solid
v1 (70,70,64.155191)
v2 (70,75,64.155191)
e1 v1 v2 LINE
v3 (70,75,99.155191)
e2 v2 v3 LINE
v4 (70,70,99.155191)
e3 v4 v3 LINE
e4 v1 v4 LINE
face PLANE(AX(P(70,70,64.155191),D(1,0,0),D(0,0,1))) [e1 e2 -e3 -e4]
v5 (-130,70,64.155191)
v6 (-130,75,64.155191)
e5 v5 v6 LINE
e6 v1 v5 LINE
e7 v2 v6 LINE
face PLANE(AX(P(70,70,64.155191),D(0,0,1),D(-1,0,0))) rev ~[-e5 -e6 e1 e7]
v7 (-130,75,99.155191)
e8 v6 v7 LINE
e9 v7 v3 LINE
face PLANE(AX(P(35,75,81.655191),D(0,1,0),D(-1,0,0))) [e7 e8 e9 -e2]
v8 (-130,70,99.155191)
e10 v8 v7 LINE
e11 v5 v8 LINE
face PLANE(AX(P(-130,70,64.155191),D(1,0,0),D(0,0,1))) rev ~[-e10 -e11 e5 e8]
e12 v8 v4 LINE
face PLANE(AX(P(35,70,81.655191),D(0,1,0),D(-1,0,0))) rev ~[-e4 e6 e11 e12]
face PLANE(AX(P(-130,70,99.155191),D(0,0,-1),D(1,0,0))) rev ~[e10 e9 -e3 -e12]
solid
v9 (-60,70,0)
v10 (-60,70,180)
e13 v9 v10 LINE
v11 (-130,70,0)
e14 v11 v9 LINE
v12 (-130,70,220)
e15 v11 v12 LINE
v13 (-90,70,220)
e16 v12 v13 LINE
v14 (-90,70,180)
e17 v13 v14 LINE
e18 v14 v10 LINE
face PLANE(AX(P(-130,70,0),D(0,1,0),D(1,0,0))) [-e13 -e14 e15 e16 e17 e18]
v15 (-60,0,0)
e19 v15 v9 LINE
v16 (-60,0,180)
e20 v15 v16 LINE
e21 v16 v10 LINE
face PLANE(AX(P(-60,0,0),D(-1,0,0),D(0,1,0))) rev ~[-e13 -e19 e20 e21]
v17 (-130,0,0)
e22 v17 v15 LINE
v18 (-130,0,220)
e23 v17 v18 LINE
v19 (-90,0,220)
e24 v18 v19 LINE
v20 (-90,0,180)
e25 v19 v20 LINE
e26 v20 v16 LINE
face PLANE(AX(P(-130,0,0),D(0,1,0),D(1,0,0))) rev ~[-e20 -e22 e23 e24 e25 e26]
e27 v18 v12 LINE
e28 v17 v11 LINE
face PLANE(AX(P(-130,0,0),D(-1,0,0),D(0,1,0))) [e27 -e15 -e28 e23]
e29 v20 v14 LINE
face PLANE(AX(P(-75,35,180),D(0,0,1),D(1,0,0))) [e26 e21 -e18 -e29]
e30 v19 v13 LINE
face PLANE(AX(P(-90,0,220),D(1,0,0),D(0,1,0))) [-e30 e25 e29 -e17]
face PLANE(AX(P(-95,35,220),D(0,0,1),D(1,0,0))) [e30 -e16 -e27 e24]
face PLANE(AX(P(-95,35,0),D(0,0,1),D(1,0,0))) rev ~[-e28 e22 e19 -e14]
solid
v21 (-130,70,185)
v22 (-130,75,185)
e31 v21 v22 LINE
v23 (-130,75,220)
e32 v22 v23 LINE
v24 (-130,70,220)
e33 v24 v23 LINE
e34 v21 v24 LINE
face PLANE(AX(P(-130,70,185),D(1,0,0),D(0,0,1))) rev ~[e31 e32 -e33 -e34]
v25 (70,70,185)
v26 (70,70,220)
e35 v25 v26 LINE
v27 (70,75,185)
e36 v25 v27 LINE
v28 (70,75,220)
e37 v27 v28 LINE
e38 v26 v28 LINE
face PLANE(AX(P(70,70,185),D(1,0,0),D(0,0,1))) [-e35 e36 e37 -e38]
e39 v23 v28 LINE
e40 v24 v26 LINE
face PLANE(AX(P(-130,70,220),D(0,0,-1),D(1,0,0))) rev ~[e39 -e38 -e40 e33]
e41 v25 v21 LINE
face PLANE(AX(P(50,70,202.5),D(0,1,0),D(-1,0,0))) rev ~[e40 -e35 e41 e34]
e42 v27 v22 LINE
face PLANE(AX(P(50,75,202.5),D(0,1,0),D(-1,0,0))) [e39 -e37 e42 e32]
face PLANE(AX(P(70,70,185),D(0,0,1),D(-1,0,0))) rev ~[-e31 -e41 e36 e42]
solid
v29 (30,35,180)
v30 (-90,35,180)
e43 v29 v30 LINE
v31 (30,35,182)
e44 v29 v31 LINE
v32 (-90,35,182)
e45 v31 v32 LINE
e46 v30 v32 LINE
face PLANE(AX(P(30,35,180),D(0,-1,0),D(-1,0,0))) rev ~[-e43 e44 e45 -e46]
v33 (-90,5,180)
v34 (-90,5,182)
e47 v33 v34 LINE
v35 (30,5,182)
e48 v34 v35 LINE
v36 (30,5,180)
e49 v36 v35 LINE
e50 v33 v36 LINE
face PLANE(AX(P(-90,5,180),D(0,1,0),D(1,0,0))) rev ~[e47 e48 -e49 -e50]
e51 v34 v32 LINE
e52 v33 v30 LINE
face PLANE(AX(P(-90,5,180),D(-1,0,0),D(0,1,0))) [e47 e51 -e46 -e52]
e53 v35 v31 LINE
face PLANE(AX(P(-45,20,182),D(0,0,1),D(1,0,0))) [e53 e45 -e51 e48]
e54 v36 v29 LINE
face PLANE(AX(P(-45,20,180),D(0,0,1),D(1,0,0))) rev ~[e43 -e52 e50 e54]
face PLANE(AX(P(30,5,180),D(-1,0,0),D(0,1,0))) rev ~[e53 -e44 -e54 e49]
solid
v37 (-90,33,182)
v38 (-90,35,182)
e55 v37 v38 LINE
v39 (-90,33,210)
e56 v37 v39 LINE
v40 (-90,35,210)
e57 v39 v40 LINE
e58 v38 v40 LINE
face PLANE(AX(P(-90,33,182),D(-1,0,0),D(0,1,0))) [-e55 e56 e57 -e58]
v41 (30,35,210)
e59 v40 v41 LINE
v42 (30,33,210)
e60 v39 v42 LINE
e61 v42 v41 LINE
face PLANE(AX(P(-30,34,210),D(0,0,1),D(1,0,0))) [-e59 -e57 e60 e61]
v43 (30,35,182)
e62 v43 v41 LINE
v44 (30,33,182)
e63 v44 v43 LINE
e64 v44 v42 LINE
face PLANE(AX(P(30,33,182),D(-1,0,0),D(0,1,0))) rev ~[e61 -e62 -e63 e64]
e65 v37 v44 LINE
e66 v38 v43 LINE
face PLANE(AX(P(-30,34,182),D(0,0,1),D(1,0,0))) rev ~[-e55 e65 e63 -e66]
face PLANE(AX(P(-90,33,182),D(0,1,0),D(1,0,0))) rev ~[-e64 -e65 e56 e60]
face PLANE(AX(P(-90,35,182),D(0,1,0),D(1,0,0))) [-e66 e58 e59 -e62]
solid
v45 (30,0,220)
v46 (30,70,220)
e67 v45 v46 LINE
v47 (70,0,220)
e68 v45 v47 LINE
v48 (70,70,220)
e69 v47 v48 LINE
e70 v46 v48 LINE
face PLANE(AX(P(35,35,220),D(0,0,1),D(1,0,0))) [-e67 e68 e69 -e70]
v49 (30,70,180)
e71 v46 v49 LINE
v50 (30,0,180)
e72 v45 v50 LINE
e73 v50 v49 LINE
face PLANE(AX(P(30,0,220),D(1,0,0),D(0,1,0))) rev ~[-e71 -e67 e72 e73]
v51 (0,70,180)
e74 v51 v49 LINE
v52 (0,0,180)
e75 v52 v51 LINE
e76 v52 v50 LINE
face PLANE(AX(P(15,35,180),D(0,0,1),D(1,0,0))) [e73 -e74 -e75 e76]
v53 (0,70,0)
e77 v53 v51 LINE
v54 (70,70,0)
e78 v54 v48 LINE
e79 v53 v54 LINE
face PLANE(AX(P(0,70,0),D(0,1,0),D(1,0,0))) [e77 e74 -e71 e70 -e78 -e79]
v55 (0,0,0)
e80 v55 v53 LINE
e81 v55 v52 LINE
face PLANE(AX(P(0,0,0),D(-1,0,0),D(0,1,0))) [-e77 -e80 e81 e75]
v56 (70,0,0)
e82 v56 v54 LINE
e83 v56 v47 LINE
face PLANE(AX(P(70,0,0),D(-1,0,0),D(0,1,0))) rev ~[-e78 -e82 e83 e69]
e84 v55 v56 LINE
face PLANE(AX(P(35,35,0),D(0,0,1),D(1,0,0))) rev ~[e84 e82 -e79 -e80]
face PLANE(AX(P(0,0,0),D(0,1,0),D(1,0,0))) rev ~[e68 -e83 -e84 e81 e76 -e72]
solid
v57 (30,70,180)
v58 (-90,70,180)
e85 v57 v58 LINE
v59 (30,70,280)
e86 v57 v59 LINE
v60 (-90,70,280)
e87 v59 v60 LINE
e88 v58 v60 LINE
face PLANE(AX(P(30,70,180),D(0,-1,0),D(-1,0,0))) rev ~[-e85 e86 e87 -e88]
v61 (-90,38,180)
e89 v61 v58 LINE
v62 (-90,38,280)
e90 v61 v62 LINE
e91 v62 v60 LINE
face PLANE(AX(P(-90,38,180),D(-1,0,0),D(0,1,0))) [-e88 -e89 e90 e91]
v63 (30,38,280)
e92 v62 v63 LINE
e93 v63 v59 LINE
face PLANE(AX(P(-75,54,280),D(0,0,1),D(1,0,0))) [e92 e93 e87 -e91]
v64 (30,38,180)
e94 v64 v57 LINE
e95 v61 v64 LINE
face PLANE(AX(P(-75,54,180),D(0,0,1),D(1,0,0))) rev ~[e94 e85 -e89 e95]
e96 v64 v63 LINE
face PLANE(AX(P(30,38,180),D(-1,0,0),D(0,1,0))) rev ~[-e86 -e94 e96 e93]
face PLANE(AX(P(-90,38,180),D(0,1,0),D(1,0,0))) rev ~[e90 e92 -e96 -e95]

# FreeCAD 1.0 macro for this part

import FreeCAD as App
import Part
import Sketcher
from FreeCAD import Vector


def add_polygon(sketch, points):
    """Adds a closed chain of lines whose ends are joined by coincident constraints."""
    first, n = sketch.GeometryCount, len(points)
    for a, b in zip(points, points[1:] + points[:1]):
        sketch.addGeometry(Part.LineSegment(App.Vector(*a, 0), App.Vector(*b, 0)), False)
    for i in range(n):
        sketch.addConstraint(Sketcher.Constraint("Coincident", first + i, 2, first + (i + 1) % n, 1))

doc = App.newDocument("Part")
body = doc.addObject("PartDesign::Body", "Body")
body.AllowCompound = True

# Sketch on XY plane
sketch1 = body.newObject("Sketcher::SketchObject", "Sketch")
sketch1.AttachmentSupport = (doc.getObject("XY_Plane"), [""])
sketch1.MapMode = "FlatFace"
add_polygon(sketch1, [(-130, 70), (-130, 0), (-60, 0), (-60, 70)])  # lines 0-3
add_polygon(sketch1, [(0, 70), (0, 0), (70, 0), (70, 70)])  # lines 4-7
sketch1.addConstraint([
    Sketcher.Constraint("Vertical", 0),
    Sketcher.Constraint("Horizontal", 1),
    Sketcher.Constraint("Vertical", 2),
    Sketcher.Constraint("Horizontal", 3),
    Sketcher.Constraint("Vertical", 4),
    Sketcher.Constraint("Horizontal", 5),
    Sketcher.Constraint("Vertical", 6),
    Sketcher.Constraint("Horizontal", 7),
    Sketcher.Constraint("Coincident", 4, 2, -1, 1),
    Sketcher.Constraint("PointOnObject", 0, 2, -1),
    Sketcher.Constraint("Horizontal", 3, 2, 6, 2),
    Sketcher.Constraint("Equal", 3, 5),
    Sketcher.Constraint("Equal", 7, 0),
    Sketcher.Constraint("DistanceX", 1, 1, 1, 2, 70.0),
    Sketcher.Constraint("DistanceX", 0, 2, -1, 1, 130.0),
])
pad1 = body.newObject("PartDesign::Pad", "Pad")
pad1.Profile = sketch1
pad1.Length = 220

# Sketch on XY plane
sketch2 = body.newObject("Sketcher::SketchObject", "Sketch001")
sketch2.AttachmentSupport = (doc.getObject("XY_Plane"), [""])
sketch2.MapMode = "FlatFace"
sketch2.AttachmentOffset = App.Placement(Vector(0, 0, 220), App.Rotation())
add_polygon(sketch2, [(-90, 70), (-90, 0), (-60, 0), (-60, 70)])  # lines 0-3
sketch2.addConstraint([
    Sketcher.Constraint("Vertical", 0),
    Sketcher.Constraint("Horizontal", 1),
    Sketcher.Constraint("Vertical", 2),
    Sketcher.Constraint("Horizontal", 3),
    Sketcher.Constraint("PointOnObject", 0, 2, -1),
    Sketcher.Constraint("DistanceX", 1, 1, 1, 2, 30.0),
    Sketcher.Constraint("DistanceY", 0, 2, 0, 1, 70.0),
    Sketcher.Constraint("DistanceX", 0, 2, -1, 1, 90.0),
])
pocket1 = body.newObject("PartDesign::Pocket", "Pocket")
pocket1.Profile = sketch2
pocket1.Length = 40

# Sketch on XY plane
sketch3 = body.newObject("Sketcher::SketchObject", "Sketch002")
sketch3.AttachmentSupport = (doc.getObject("XY_Plane"), [""])
sketch3.MapMode = "FlatFace"
sketch3.AttachmentOffset = App.Placement(Vector(0, 0, 220), App.Rotation())
add_polygon(sketch3, [(0, 70), (0, 0), (30, 0), (30, 70)])  # lines 0-3
sketch3.addConstraint([
    Sketcher.Constraint("Vertical", 0),
    Sketcher.Constraint("Horizontal", 1),
    Sketcher.Constraint("Vertical", 2),
    Sketcher.Constraint("Horizontal", 3),
    Sketcher.Constraint("Coincident", 0, 2, -1, 1),
    Sketcher.Constraint("DistanceX", 1, 1, 1, 2, 30.0),
    Sketcher.Constraint("DistanceY", 0, 2, 0, 1, 70.0),
])
pocket2 = body.newObject("PartDesign::Pocket", "Pocket001")
pocket2.Profile = sketch3
pocket2.Length = 40
body2 = doc.addObject("PartDesign::Body", "Body001")

# Sketch on XY plane
sketch4 = body2.newObject("Sketcher::SketchObject", "Sketch003")
sketch4.AttachmentSupport = (doc.getObject("XY_Plane001"), [""])
sketch4.MapMode = "FlatFace"
sketch4.AttachmentOffset = App.Placement(Vector(0, 0, 180), App.Rotation())
add_polygon(sketch4, [(-90, 70), (-90, 38), (30, 38), (30, 70)])  # lines 0-3
sketch4.addConstraint([
    Sketcher.Constraint("Vertical", 0),
    Sketcher.Constraint("Horizontal", 1),
    Sketcher.Constraint("Vertical", 2),
    Sketcher.Constraint("Horizontal", 3),
    Sketcher.Constraint("DistanceX", 1, 1, 1, 2, 120.0),
    Sketcher.Constraint("DistanceY", 0, 2, 0, 1, 32.0),
    Sketcher.Constraint("DistanceX", 0, 2, -1, 1, 90.0),
    Sketcher.Constraint("DistanceY", -1, 1, 0, 2, 38.0),
])
pad2 = body2.newObject("PartDesign::Pad", "Pad001")
pad2.Profile = sketch4
pad2.Length = 100
body3 = doc.addObject("PartDesign::Body", "Body002")

# Sketch on XZ plane
sketch5 = body3.newObject("Sketcher::SketchObject", "Sketch004")
sketch5.AttachmentSupport = (doc.getObject("XZ_Plane002"), [""])
sketch5.MapMode = "FlatFace"
sketch5.AttachmentOffset = App.Placement(Vector(0, 0, -70), App.Rotation())
add_polygon(sketch5, [(70, 220), (70, 185), (-130, 185), (-130, 220)])  # lines 0-3
sketch5.addConstraint([
    Sketcher.Constraint("Vertical", 0),
    Sketcher.Constraint("Horizontal", 1),
    Sketcher.Constraint("Vertical", 2),
    Sketcher.Constraint("Horizontal", 3),
    Sketcher.Constraint("DistanceX", 1, 2, 1, 1, 200.0),
    Sketcher.Constraint("DistanceY", 0, 2, 0, 1, 35.0),
    Sketcher.Constraint("DistanceX", -1, 1, 0, 2, 70.0),
    Sketcher.Constraint("DistanceY", -1, 1, 0, 2, 185.0),
])
pad3 = body3.newObject("PartDesign::Pad", "Pad002")
pad3.Profile = sketch5
pad3.Length = 5
pad3.Reversed = True
body4 = doc.addObject("PartDesign::Body", "Body003")

# Sketch on XZ plane
sketch6 = body4.newObject("Sketcher::SketchObject", "Sketch005")
sketch6.AttachmentSupport = (doc.getObject("XZ_Plane003"), [""])
sketch6.MapMode = "FlatFace"
sketch6.AttachmentOffset = App.Placement(Vector(0, 0, -70), App.Rotation())
add_polygon(sketch6, [(70, 99), (70, 64), (-130, 64), (-130, 99)])  # lines 0-3
sketch6.addConstraint([
    Sketcher.Constraint("Vertical", 0),
    Sketcher.Constraint("Horizontal", 1),
    Sketcher.Constraint("Vertical", 2),
    Sketcher.Constraint("Horizontal", 3),
    Sketcher.Constraint("DistanceX", 1, 2, 1, 1, 200.0),
    Sketcher.Constraint("DistanceY", 0, 2, 0, 1, 35.0),
    Sketcher.Constraint("DistanceX", -1, 1, 0, 2, 70.0),
    Sketcher.Constraint("DistanceY", -1, 1, 0, 2, 64.155191),
])
pad4 = body4.newObject("PartDesign::Pad", "Pad003")
pad4.Profile = sketch6
pad4.Length = 5
pad4.Reversed = True
body5 = doc.addObject("PartDesign::Body", "Body004")

# Sketch on XY plane
sketch7 = body5.newObject("Sketcher::SketchObject", "Sketch006")
sketch7.AttachmentSupport = (doc.getObject("XY_Plane004"), [""])
sketch7.MapMode = "FlatFace"
sketch7.AttachmentOffset = App.Placement(Vector(0, 0, 180), App.Rotation())
add_polygon(sketch7, [(-90, 35), (-90, 5), (30, 5), (30, 35)])  # lines 0-3
sketch7.addConstraint([
    Sketcher.Constraint("Vertical", 0),
    Sketcher.Constraint("Horizontal", 1),
    Sketcher.Constraint("Vertical", 2),
    Sketcher.Constraint("Horizontal", 3),
    Sketcher.Constraint("DistanceX", 1, 1, 1, 2, 120.0),
    Sketcher.Constraint("DistanceY", 0, 2, 0, 1, 30.0),
    Sketcher.Constraint("DistanceX", 0, 2, -1, 1, 90.0),
    Sketcher.Constraint("DistanceY", -1, 1, 0, 2, 5.0),
])
pad5 = body5.newObject("PartDesign::Pad", "Pad004")
pad5.Profile = sketch7
pad5.Length = 2
body6 = doc.addObject("PartDesign::Body", "Body005")

# Sketch on XY plane
sketch8 = body6.newObject("Sketcher::SketchObject", "Sketch007")
sketch8.AttachmentSupport = (doc.getObject("XY_Plane005"), [""])
sketch8.MapMode = "FlatFace"
sketch8.AttachmentOffset = App.Placement(Vector(0, 0, 182), App.Rotation())
add_polygon(sketch8, [(-90, 35), (-90, 33), (30, 33), (30, 35)])  # lines 0-3
sketch8.addConstraint([
    Sketcher.Constraint("Vertical", 0),
    Sketcher.Constraint("Horizontal", 1),
    Sketcher.Constraint("Vertical", 2),
    Sketcher.Constraint("Horizontal", 3),
    Sketcher.Constraint("DistanceX", 1, 1, 1, 2, 120.0),
    Sketcher.Constraint("DistanceY", 0, 2, 0, 1, 2.0),
    Sketcher.Constraint("DistanceX", 0, 2, -1, 1, 90.0),
    Sketcher.Constraint("DistanceY", -1, 1, 0, 2, 33.0),
])
pad6 = body6.newObject("PartDesign::Pad", "Pad005")
pad6.Profile = sketch8
pad6.Length = 28

doc.recompute()
